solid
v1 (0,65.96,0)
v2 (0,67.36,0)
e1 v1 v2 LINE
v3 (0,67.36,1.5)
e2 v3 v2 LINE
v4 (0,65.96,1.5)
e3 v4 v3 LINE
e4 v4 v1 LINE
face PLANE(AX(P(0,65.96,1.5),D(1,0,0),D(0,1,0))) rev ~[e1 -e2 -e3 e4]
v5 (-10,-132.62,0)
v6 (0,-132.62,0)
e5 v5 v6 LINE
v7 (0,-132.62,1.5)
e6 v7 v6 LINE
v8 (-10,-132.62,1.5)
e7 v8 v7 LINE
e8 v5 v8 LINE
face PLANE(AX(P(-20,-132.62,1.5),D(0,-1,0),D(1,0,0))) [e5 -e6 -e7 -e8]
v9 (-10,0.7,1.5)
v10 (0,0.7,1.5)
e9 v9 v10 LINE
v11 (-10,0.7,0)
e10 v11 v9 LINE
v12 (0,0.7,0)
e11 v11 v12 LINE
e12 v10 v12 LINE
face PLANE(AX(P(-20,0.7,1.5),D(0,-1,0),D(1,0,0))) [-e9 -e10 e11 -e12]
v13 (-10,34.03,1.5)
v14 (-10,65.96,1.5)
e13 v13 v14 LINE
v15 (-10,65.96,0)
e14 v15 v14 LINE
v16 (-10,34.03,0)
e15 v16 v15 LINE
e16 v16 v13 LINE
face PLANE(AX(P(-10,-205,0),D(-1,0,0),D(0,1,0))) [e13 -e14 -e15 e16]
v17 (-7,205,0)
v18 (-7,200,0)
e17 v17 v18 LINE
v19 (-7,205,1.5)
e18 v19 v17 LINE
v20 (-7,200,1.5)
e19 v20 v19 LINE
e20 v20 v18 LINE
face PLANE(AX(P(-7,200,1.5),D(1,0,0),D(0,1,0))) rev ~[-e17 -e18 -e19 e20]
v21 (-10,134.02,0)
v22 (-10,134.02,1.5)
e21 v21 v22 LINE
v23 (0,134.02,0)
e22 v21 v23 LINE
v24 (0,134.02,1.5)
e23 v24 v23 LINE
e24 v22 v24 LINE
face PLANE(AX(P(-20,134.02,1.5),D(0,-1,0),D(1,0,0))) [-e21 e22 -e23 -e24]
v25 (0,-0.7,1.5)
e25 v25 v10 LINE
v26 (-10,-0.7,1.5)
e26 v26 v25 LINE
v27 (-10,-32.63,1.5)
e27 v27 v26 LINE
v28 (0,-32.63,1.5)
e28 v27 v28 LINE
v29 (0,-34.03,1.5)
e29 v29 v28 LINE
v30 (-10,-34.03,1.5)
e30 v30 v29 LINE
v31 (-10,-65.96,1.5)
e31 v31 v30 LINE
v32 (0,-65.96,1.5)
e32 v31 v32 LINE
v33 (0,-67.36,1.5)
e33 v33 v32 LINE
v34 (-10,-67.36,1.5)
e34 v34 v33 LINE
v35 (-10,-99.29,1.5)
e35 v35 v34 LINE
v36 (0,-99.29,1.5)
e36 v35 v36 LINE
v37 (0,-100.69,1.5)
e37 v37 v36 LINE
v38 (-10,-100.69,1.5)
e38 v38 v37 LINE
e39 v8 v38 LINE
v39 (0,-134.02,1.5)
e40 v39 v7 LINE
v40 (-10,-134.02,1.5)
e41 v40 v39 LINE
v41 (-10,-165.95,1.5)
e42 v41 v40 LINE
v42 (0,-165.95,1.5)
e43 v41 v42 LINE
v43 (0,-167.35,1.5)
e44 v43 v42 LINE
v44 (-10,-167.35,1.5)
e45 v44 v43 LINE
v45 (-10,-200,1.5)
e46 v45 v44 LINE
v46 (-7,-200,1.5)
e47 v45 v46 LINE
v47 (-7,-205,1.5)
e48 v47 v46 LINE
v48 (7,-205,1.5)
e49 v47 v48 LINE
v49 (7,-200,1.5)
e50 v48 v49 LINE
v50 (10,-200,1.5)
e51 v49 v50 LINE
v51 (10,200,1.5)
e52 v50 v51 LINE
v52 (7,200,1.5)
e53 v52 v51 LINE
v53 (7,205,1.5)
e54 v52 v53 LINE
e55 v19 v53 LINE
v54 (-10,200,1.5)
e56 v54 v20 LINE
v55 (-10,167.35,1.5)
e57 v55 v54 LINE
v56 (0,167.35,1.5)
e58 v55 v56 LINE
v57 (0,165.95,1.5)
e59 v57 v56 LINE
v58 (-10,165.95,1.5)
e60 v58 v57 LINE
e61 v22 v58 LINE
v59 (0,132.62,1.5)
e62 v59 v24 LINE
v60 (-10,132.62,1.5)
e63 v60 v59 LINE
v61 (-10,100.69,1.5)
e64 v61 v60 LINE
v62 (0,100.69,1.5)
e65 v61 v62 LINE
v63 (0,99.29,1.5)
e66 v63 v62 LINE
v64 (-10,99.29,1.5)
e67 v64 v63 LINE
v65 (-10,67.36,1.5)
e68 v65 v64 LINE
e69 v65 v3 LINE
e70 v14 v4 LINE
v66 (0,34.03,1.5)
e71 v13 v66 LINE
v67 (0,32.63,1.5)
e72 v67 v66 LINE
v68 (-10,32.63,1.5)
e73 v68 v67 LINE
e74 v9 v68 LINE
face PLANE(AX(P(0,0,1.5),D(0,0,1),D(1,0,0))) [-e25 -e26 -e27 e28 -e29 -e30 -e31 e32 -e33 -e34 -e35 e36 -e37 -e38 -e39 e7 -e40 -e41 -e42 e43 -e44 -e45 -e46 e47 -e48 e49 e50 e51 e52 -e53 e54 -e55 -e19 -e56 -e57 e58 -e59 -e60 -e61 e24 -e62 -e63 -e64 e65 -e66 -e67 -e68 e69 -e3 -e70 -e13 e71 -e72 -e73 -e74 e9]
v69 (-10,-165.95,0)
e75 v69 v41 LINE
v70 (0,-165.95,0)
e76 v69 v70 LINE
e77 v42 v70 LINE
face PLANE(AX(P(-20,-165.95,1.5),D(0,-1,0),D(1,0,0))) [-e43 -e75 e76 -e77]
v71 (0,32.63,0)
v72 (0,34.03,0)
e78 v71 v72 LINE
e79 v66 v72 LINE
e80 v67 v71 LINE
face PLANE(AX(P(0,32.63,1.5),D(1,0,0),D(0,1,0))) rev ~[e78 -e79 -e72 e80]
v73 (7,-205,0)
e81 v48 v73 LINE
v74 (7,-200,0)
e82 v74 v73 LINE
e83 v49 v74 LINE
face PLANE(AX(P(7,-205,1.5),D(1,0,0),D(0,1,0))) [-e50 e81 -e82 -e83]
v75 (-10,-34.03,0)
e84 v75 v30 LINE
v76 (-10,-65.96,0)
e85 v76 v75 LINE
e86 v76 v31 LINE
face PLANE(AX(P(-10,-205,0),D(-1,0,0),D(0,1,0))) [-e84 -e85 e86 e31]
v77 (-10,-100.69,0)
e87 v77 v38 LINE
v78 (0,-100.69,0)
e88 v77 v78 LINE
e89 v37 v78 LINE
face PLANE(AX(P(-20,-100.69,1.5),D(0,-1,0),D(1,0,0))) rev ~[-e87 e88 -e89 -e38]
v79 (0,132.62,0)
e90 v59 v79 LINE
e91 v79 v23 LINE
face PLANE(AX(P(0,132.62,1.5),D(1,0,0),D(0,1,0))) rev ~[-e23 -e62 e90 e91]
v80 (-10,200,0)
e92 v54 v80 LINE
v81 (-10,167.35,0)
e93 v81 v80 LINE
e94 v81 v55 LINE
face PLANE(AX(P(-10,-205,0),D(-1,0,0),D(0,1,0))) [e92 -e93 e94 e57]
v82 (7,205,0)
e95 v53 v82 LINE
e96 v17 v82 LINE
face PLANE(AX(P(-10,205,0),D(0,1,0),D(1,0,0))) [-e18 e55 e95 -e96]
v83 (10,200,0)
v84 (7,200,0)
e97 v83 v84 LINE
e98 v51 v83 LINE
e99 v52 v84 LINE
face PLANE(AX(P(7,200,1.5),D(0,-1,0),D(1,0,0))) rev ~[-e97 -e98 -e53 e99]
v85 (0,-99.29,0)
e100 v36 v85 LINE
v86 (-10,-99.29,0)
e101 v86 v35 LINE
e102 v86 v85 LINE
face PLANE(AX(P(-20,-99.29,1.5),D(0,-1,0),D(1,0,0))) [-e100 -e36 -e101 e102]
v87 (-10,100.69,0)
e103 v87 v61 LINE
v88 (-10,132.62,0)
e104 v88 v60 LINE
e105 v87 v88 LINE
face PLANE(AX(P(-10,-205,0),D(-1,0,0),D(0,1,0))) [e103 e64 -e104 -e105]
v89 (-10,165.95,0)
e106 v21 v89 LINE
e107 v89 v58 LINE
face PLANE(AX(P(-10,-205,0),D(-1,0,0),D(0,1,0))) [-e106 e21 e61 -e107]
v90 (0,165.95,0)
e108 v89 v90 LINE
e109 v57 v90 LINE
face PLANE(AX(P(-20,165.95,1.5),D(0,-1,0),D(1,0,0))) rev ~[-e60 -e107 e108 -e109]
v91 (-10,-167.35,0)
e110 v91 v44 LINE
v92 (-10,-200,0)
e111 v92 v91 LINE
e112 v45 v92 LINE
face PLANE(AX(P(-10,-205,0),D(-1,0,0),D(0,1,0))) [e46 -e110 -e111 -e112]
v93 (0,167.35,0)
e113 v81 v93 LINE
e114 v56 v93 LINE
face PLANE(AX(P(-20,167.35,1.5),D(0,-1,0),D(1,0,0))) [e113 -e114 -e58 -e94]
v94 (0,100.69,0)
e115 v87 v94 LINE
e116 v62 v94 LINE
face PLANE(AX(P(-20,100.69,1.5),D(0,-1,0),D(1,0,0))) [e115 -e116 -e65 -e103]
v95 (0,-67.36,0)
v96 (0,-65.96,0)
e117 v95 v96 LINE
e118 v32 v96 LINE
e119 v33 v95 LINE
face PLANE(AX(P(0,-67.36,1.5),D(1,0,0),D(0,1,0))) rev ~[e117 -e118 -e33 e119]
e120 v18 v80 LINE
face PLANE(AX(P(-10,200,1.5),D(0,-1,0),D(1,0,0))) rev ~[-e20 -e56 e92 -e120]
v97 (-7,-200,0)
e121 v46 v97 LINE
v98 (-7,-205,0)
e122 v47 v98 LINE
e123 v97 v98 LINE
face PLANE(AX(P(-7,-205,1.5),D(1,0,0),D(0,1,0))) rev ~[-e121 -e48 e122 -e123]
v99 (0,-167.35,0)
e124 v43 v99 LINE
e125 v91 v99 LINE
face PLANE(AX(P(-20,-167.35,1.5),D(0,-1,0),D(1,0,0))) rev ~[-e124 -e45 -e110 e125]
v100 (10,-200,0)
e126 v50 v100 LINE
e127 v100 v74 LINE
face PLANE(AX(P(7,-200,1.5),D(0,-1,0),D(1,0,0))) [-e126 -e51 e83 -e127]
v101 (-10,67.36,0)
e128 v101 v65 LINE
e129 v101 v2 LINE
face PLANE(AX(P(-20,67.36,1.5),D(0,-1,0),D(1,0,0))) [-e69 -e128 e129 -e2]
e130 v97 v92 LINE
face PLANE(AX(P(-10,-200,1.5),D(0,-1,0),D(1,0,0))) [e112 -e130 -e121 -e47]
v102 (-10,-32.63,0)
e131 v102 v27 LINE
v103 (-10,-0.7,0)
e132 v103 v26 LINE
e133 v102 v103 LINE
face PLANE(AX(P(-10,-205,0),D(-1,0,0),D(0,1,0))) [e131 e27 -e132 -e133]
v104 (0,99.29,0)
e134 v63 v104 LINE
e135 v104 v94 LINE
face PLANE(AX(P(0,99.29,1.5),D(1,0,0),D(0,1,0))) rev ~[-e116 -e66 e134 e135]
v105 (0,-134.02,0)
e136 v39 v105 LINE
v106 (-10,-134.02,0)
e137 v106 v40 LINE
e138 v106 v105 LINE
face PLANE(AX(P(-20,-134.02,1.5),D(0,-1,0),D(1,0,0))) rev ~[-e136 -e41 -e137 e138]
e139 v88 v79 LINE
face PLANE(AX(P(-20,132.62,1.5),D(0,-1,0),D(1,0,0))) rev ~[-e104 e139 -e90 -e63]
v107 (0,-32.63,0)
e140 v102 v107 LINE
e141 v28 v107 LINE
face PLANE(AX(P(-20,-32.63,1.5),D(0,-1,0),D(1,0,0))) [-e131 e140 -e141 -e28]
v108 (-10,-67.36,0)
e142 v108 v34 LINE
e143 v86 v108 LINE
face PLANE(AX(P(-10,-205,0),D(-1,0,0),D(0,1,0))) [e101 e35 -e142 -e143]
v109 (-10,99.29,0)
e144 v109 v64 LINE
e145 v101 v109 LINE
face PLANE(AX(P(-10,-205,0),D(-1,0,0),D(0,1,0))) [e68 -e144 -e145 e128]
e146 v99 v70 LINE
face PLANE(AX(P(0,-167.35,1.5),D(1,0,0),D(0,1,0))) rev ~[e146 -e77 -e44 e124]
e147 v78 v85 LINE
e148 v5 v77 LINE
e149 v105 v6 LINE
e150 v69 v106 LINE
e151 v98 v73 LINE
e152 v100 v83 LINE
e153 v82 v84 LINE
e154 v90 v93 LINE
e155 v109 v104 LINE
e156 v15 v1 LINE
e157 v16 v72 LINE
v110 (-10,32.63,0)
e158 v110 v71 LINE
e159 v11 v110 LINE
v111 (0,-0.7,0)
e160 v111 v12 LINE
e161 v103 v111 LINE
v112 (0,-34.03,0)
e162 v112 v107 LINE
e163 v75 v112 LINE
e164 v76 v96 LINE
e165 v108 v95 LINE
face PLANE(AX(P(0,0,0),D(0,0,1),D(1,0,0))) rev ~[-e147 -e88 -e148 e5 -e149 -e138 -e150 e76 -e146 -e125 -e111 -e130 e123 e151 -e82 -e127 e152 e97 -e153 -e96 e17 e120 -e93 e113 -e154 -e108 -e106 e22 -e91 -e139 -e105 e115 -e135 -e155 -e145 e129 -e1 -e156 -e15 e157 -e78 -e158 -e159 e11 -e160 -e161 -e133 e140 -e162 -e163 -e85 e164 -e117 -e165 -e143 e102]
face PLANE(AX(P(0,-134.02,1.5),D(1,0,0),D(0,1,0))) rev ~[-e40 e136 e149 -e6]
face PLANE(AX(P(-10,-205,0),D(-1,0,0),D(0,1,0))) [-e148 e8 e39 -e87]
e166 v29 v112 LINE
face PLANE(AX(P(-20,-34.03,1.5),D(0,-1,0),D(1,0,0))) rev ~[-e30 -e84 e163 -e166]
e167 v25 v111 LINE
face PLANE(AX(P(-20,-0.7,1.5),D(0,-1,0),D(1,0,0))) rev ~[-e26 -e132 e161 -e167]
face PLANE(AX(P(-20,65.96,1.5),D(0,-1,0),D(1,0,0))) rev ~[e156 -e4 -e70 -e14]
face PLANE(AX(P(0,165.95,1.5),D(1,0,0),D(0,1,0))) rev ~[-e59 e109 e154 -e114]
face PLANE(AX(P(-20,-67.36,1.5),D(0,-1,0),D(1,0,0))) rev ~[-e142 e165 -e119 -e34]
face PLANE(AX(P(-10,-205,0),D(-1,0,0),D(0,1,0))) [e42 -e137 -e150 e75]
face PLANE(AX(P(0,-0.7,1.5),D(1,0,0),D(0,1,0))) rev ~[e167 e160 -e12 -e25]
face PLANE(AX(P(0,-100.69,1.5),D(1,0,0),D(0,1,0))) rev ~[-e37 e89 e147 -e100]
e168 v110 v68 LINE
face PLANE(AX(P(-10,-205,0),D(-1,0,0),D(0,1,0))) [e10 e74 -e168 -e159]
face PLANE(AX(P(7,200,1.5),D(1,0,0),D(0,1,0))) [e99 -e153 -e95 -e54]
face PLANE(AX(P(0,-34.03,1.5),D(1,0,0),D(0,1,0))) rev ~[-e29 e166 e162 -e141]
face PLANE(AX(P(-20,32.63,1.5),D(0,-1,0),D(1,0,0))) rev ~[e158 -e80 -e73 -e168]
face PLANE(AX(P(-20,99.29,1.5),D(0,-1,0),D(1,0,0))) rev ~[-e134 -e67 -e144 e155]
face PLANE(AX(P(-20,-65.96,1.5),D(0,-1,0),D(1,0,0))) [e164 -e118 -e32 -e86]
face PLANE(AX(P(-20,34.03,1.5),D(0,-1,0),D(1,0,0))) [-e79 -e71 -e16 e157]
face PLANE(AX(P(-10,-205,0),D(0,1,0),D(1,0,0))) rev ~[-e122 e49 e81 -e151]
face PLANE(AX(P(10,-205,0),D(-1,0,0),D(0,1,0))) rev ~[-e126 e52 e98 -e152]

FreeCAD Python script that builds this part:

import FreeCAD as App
import Part
import Sketcher

V = App.Vector

doc = App.newDocument("Part")
body = doc.addObject("PartDesign::Body", "Body")

sketch1 = body.newObject("Sketcher::SketchObject", "Sketch")
sketch1.AttachmentSupport = (doc.getObject("XY_Plane"), [""])
sketch1.MapMode = "FlatFace"
sketch1.addGeometry([
    Part.LineSegment(V(-10, 205, 0), V(-10, -205, 0)),
    Part.LineSegment(V(-10, -205, 0), V(10, -205, 0)),
    Part.LineSegment(V(10, -205, 0), V(10, 205, 0)),
    Part.LineSegment(V(10, 205, 0), V(-10, 205, 0)),
], False)
sketch1.addConstraint([
    Sketcher.Constraint("Coincident", 0, 2, 1, 1),
    Sketcher.Constraint("Coincident", 1, 2, 2, 1),
    Sketcher.Constraint("Coincident", 2, 2, 3, 1),
    Sketcher.Constraint("Coincident", 3, 2, 0, 1),
    Sketcher.Constraint("Vertical", 0),
    Sketcher.Constraint("Horizontal", 1),
    Sketcher.Constraint("Vertical", 2),
    Sketcher.Constraint("Horizontal", 3),
    Sketcher.Constraint("Symmetric", 0, 2, 2, 2, -1, 1),
    Sketcher.Constraint("DistanceX", 1, 1, 1, 2, 20.0),
    Sketcher.Constraint("DistanceY", 0, 2, 0, 1, 410.0),
])
pad1 = body.newObject("PartDesign::Pad", "Pad")
pad1.Profile = sketch1
pad1.Length = 1.5

sketch2 = body.newObject("Sketcher::SketchObject", "Sketch001")
sketch2.AttachmentSupport = (doc.getObject("XY_Plane"), [""])
sketch2.MapMode = "FlatFace"
sketch2.AttachmentOffset = App.Placement(V(0, 0, 1.5), App.Rotation())
sketch2.addGeometry([
    Part.LineSegment(V(-10, 205, 0), V(-10, 200, 0)),
    Part.LineSegment(V(-10, 200, 0), V(-7, 200, 0)),
    Part.LineSegment(V(-7, 200, 0), V(-7, 205, 0)),
    Part.LineSegment(V(-7, 205, 0), V(-10, 205, 0)),
], False)
sketch2.addConstraint([
    Sketcher.Constraint("Coincident", 0, 2, 1, 1),
    Sketcher.Constraint("Coincident", 1, 2, 2, 1),
    Sketcher.Constraint("Coincident", 2, 2, 3, 1),
    Sketcher.Constraint("Coincident", 3, 2, 0, 1),
    Sketcher.Constraint("Vertical", 0),
    Sketcher.Constraint("Horizontal", 1),
    Sketcher.Constraint("Vertical", 2),
    Sketcher.Constraint("Horizontal", 3),
    Sketcher.Constraint("DistanceX", 1, 1, 1, 2, 3.0),
    Sketcher.Constraint("DistanceY", 0, 2, 0, 1, 5.0),
    Sketcher.Constraint("DistanceX", 0, 2, -1, 1, 10.0),
    Sketcher.Constraint("DistanceY", -1, 1, 0, 2, 200.0),
])
pocket1 = body.newObject("PartDesign::Pocket", "Pocket")
pocket1.Profile = sketch2
pocket1.Type = "UpToFirst"

sketch3 = body.newObject("Sketcher::SketchObject", "Sketch002")
sketch3.AttachmentSupport = (doc.getObject("XY_Plane"), [""])
sketch3.MapMode = "FlatFace"
sketch3.AttachmentOffset = App.Placement(V(0, 0, 1.5), App.Rotation())
sketch3.addGeometry([
    Part.LineSegment(V(7, 205, 0), V(7, 200, 0)),
    Part.LineSegment(V(7, 200, 0), V(10, 200, 0)),
    Part.LineSegment(V(10, 200, 0), V(10, 205, 0)),
    Part.LineSegment(V(10, 205, 0), V(7, 205, 0)),
], False)
sketch3.addConstraint([
    Sketcher.Constraint("Coincident", 0, 2, 1, 1),
    Sketcher.Constraint("Coincident", 1, 2, 2, 1),
    Sketcher.Constraint("Coincident", 2, 2, 3, 1),
    Sketcher.Constraint("Coincident", 3, 2, 0, 1),
    Sketcher.Constraint("Vertical", 0),
    Sketcher.Constraint("Horizontal", 1),
    Sketcher.Constraint("Vertical", 2),
    Sketcher.Constraint("Horizontal", 3),
    Sketcher.Constraint("DistanceX", 1, 1, 1, 2, 3.0),
    Sketcher.Constraint("DistanceY", 0, 2, 0, 1, 5.0),
    Sketcher.Constraint("DistanceX", -1, 1, 0, 2, 7.0),
    Sketcher.Constraint("DistanceY", -1, 1, 0, 2, 200.0),
])
pocket2 = body.newObject("PartDesign::Pocket", "Pocket001")
pocket2.Profile = sketch3
pocket2.Type = "UpToFirst"

sketch4 = body.newObject("Sketcher::SketchObject", "Sketch003")
sketch4.AttachmentSupport = (doc.getObject("XY_Plane"), [""])
sketch4.MapMode = "FlatFace"
sketch4.AttachmentOffset = App.Placement(V(0, 0, 1.5), App.Rotation())
sketch4.addGeometry([
    Part.LineSegment(V(-10, -200, 0), V(-10, -205, 0)),
    Part.LineSegment(V(-10, -205, 0), V(-7, -205, 0)),
    Part.LineSegment(V(-7, -205, 0), V(-7, -200, 0)),
    Part.LineSegment(V(-7, -200, 0), V(-10, -200, 0)),
], False)
sketch4.addConstraint([
    Sketcher.Constraint("Coincident", 0, 2, 1, 1),
    Sketcher.Constraint("Coincident", 1, 2, 2, 1),
    Sketcher.Constraint("Coincident", 2, 2, 3, 1),
    Sketcher.Constraint("Coincident", 3, 2, 0, 1),
    Sketcher.Constraint("Vertical", 0),
    Sketcher.Constraint("Horizontal", 1),
    Sketcher.Constraint("Vertical", 2),
    Sketcher.Constraint("Horizontal", 3),
    Sketcher.Constraint("DistanceX", 1, 1, 1, 2, 3.0),
    Sketcher.Constraint("DistanceY", 0, 2, 0, 1, 5.0),
    Sketcher.Constraint("DistanceX", 0, 2, -1, 1, 10.0),
    Sketcher.Constraint("DistanceY", 0, 2, -1, 1, 205.0),
])
pocket3 = body.newObject("PartDesign::Pocket", "Pocket002")
pocket3.Profile = sketch4
pocket3.Type = "UpToFirst"

sketch5 = body.newObject("Sketcher::SketchObject", "Sketch004")
sketch5.AttachmentSupport = (doc.getObject("XY_Plane"), [""])
sketch5.MapMode = "FlatFace"
sketch5.AttachmentOffset = App.Placement(V(0, 0, 1.5), App.Rotation())
sketch5.addGeometry([
    Part.LineSegment(V(7, -200, 0), V(7, -205, 0)),
    Part.LineSegment(V(7, -205, 0), V(10, -205, 0)),
    Part.LineSegment(V(10, -205, 0), V(10, -200, 0)),
    Part.LineSegment(V(10, -200, 0), V(7, -200, 0)),
], False)
sketch5.addConstraint([
    Sketcher.Constraint("Coincident", 0, 2, 1, 1),
    Sketcher.Constraint("Coincident", 1, 2, 2, 1),
    Sketcher.Constraint("Coincident", 2, 2, 3, 1),
    Sketcher.Constraint("Coincident", 3, 2, 0, 1),
    Sketcher.Constraint("Vertical", 0),
    Sketcher.Constraint("Horizontal", 1),
    Sketcher.Constraint("Vertical", 2),
    Sketcher.Constraint("Horizontal", 3),
    Sketcher.Constraint("DistanceX", 1, 1, 1, 2, 3.0),
    Sketcher.Constraint("DistanceY", 0, 2, 0, 1, 5.0),
    Sketcher.Constraint("DistanceX", -1, 1, 0, 2, 7.0),
    Sketcher.Constraint("DistanceY", 0, 2, -1, 1, 205.0),
])
pocket4 = body.newObject("PartDesign::Pocket", "Pocket003")
pocket4.Profile = sketch5
pocket4.Type = "UpToFirst"

sketch6 = body.newObject("Sketcher::SketchObject", "Sketch005")
sketch6.AttachmentSupport = (doc.getObject("XY_Plane"), [""])
sketch6.MapMode = "FlatFace"
sketch6.AttachmentOffset = App.Placement(V(0, 0, 1.5), App.Rotation())
sketch6.addGeometry([
    Part.LineSegment(V(-20, 0.7, 0), V(-20, -0.7, 0)),
    Part.LineSegment(V(-20, -0.7, 0), V(0, -0.7, 0)),
    Part.LineSegment(V(0, -0.7, 0), V(0, 0.7, 0)),
    Part.LineSegment(V(0, 0.7, 0), V(-20, 0.7, 0)),
], False)
sketch6.addConstraint([
    Sketcher.Constraint("Coincident", 0, 2, 1, 1),
    Sketcher.Constraint("Coincident", 1, 2, 2, 1),
    Sketcher.Constraint("Coincident", 2, 2, 3, 1),
    Sketcher.Constraint("Coincident", 3, 2, 0, 1),
    Sketcher.Constraint("Vertical", 0),
    Sketcher.Constraint("Horizontal", 1),
    Sketcher.Constraint("Vertical", 2),
    Sketcher.Constraint("Horizontal", 3),
    Sketcher.Constraint("Symmetric", 1, 2, 2, 2, -1, 1),
    Sketcher.Constraint("DistanceX", 1, 1, 1, 2, 20.0),
    Sketcher.Constraint("DistanceY", 0, 2, 0, 1, 1.4),
])
pocket5 = body.newObject("PartDesign::Pocket", "Pocket004")
pocket5.Profile = sketch6
pocket5.Length = 1.5
doc.recompute()

linearpattern = body.newObject("PartDesign::LinearPattern", "LinearPattern")
linearpattern.Originals = [pocket5]
linearpattern.Direction = (doc.getObject("Y_Axis"), [""])
linearpattern.Mode = "offset"
linearpattern.Offset = 33.33
linearpattern.Occurrences = 6
body.Tip = linearpattern
doc.recompute()

linearpattern2 = body.newObject("PartDesign::LinearPattern", "LinearPattern001")
linearpattern2.Originals = [pocket5]
linearpattern2.Direction = (doc.getObject("Y_Axis"), [""])
linearpattern2.Mode = "offset"
linearpattern2.Offset = 33.33
linearpattern2.Occurrences = 6
linearpattern2.Reversed = True
body.Tip = linearpattern2

doc.recompute()
